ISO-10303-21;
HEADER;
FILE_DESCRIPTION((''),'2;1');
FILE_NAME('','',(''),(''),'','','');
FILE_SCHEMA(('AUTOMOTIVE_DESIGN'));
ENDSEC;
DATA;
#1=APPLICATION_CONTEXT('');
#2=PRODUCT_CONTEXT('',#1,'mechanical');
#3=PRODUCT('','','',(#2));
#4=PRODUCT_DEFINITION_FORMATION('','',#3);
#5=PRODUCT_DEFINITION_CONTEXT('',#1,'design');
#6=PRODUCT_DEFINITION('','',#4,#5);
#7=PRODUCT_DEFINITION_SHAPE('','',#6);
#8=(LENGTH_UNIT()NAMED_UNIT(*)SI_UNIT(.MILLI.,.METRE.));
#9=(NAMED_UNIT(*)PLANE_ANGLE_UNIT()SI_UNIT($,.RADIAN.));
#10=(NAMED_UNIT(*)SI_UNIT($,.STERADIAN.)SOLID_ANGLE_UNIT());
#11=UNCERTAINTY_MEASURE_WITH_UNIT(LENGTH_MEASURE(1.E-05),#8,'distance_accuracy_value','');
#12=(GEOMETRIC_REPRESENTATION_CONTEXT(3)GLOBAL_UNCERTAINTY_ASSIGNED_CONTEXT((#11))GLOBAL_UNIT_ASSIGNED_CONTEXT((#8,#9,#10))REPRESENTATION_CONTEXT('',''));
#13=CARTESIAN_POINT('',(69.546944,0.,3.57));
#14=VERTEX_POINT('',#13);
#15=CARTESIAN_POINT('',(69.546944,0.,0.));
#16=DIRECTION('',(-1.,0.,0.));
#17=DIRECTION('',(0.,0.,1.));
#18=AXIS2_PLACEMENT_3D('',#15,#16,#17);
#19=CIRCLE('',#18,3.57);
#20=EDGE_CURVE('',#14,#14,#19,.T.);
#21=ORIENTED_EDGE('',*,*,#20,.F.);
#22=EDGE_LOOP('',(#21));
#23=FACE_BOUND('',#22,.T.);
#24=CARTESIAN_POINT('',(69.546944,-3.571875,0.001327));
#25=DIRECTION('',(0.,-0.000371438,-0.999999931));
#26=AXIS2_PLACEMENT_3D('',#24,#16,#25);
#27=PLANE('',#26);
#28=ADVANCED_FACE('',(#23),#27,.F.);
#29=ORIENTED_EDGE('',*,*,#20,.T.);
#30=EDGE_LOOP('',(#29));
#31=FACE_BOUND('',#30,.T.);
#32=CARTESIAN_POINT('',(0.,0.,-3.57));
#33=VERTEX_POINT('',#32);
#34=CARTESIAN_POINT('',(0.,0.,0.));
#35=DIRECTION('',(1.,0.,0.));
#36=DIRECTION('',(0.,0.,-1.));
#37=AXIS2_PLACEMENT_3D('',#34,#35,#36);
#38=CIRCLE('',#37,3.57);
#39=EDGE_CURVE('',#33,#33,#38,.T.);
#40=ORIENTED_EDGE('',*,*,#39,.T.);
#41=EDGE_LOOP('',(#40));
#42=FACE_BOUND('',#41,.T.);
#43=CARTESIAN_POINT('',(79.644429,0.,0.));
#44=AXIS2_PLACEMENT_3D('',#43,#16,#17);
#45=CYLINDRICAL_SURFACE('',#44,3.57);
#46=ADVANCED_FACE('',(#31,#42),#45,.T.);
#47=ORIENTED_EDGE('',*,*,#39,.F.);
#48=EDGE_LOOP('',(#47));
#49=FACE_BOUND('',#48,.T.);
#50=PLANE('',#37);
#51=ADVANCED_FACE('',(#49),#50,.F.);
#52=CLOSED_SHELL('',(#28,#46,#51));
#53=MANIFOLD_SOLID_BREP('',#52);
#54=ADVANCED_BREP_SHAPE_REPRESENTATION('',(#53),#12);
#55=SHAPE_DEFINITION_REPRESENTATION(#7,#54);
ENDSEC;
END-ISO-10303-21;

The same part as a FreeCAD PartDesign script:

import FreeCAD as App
import Part
import Sketcher

doc = App.newDocument("Part")
body = doc.addObject("PartDesign::Body", "Body")

# Sketch on YZ plane
sketch1 = body.newObject("Sketcher::SketchObject", "Sketch")
sketch1.AttachmentSupport = (doc.getObject("YZ_Plane"), [""])
sketch1.MapMode = "FlatFace"
sketch1.addGeometry(Part.Circle(App.Vector(0, 0, 0), App.Vector(0, 0, 1), 3.6), False)
sketch1.addConstraint([
    Sketcher.Constraint("Coincident", 0, 3, -1, 1),
    Sketcher.Constraint("Diameter", 0, 7.14),
])
pad1 = body.newObject("PartDesign::Pad", "Pad")
pad1.Profile = sketch1
pad1.Length = 69.546944

doc.recompute()
